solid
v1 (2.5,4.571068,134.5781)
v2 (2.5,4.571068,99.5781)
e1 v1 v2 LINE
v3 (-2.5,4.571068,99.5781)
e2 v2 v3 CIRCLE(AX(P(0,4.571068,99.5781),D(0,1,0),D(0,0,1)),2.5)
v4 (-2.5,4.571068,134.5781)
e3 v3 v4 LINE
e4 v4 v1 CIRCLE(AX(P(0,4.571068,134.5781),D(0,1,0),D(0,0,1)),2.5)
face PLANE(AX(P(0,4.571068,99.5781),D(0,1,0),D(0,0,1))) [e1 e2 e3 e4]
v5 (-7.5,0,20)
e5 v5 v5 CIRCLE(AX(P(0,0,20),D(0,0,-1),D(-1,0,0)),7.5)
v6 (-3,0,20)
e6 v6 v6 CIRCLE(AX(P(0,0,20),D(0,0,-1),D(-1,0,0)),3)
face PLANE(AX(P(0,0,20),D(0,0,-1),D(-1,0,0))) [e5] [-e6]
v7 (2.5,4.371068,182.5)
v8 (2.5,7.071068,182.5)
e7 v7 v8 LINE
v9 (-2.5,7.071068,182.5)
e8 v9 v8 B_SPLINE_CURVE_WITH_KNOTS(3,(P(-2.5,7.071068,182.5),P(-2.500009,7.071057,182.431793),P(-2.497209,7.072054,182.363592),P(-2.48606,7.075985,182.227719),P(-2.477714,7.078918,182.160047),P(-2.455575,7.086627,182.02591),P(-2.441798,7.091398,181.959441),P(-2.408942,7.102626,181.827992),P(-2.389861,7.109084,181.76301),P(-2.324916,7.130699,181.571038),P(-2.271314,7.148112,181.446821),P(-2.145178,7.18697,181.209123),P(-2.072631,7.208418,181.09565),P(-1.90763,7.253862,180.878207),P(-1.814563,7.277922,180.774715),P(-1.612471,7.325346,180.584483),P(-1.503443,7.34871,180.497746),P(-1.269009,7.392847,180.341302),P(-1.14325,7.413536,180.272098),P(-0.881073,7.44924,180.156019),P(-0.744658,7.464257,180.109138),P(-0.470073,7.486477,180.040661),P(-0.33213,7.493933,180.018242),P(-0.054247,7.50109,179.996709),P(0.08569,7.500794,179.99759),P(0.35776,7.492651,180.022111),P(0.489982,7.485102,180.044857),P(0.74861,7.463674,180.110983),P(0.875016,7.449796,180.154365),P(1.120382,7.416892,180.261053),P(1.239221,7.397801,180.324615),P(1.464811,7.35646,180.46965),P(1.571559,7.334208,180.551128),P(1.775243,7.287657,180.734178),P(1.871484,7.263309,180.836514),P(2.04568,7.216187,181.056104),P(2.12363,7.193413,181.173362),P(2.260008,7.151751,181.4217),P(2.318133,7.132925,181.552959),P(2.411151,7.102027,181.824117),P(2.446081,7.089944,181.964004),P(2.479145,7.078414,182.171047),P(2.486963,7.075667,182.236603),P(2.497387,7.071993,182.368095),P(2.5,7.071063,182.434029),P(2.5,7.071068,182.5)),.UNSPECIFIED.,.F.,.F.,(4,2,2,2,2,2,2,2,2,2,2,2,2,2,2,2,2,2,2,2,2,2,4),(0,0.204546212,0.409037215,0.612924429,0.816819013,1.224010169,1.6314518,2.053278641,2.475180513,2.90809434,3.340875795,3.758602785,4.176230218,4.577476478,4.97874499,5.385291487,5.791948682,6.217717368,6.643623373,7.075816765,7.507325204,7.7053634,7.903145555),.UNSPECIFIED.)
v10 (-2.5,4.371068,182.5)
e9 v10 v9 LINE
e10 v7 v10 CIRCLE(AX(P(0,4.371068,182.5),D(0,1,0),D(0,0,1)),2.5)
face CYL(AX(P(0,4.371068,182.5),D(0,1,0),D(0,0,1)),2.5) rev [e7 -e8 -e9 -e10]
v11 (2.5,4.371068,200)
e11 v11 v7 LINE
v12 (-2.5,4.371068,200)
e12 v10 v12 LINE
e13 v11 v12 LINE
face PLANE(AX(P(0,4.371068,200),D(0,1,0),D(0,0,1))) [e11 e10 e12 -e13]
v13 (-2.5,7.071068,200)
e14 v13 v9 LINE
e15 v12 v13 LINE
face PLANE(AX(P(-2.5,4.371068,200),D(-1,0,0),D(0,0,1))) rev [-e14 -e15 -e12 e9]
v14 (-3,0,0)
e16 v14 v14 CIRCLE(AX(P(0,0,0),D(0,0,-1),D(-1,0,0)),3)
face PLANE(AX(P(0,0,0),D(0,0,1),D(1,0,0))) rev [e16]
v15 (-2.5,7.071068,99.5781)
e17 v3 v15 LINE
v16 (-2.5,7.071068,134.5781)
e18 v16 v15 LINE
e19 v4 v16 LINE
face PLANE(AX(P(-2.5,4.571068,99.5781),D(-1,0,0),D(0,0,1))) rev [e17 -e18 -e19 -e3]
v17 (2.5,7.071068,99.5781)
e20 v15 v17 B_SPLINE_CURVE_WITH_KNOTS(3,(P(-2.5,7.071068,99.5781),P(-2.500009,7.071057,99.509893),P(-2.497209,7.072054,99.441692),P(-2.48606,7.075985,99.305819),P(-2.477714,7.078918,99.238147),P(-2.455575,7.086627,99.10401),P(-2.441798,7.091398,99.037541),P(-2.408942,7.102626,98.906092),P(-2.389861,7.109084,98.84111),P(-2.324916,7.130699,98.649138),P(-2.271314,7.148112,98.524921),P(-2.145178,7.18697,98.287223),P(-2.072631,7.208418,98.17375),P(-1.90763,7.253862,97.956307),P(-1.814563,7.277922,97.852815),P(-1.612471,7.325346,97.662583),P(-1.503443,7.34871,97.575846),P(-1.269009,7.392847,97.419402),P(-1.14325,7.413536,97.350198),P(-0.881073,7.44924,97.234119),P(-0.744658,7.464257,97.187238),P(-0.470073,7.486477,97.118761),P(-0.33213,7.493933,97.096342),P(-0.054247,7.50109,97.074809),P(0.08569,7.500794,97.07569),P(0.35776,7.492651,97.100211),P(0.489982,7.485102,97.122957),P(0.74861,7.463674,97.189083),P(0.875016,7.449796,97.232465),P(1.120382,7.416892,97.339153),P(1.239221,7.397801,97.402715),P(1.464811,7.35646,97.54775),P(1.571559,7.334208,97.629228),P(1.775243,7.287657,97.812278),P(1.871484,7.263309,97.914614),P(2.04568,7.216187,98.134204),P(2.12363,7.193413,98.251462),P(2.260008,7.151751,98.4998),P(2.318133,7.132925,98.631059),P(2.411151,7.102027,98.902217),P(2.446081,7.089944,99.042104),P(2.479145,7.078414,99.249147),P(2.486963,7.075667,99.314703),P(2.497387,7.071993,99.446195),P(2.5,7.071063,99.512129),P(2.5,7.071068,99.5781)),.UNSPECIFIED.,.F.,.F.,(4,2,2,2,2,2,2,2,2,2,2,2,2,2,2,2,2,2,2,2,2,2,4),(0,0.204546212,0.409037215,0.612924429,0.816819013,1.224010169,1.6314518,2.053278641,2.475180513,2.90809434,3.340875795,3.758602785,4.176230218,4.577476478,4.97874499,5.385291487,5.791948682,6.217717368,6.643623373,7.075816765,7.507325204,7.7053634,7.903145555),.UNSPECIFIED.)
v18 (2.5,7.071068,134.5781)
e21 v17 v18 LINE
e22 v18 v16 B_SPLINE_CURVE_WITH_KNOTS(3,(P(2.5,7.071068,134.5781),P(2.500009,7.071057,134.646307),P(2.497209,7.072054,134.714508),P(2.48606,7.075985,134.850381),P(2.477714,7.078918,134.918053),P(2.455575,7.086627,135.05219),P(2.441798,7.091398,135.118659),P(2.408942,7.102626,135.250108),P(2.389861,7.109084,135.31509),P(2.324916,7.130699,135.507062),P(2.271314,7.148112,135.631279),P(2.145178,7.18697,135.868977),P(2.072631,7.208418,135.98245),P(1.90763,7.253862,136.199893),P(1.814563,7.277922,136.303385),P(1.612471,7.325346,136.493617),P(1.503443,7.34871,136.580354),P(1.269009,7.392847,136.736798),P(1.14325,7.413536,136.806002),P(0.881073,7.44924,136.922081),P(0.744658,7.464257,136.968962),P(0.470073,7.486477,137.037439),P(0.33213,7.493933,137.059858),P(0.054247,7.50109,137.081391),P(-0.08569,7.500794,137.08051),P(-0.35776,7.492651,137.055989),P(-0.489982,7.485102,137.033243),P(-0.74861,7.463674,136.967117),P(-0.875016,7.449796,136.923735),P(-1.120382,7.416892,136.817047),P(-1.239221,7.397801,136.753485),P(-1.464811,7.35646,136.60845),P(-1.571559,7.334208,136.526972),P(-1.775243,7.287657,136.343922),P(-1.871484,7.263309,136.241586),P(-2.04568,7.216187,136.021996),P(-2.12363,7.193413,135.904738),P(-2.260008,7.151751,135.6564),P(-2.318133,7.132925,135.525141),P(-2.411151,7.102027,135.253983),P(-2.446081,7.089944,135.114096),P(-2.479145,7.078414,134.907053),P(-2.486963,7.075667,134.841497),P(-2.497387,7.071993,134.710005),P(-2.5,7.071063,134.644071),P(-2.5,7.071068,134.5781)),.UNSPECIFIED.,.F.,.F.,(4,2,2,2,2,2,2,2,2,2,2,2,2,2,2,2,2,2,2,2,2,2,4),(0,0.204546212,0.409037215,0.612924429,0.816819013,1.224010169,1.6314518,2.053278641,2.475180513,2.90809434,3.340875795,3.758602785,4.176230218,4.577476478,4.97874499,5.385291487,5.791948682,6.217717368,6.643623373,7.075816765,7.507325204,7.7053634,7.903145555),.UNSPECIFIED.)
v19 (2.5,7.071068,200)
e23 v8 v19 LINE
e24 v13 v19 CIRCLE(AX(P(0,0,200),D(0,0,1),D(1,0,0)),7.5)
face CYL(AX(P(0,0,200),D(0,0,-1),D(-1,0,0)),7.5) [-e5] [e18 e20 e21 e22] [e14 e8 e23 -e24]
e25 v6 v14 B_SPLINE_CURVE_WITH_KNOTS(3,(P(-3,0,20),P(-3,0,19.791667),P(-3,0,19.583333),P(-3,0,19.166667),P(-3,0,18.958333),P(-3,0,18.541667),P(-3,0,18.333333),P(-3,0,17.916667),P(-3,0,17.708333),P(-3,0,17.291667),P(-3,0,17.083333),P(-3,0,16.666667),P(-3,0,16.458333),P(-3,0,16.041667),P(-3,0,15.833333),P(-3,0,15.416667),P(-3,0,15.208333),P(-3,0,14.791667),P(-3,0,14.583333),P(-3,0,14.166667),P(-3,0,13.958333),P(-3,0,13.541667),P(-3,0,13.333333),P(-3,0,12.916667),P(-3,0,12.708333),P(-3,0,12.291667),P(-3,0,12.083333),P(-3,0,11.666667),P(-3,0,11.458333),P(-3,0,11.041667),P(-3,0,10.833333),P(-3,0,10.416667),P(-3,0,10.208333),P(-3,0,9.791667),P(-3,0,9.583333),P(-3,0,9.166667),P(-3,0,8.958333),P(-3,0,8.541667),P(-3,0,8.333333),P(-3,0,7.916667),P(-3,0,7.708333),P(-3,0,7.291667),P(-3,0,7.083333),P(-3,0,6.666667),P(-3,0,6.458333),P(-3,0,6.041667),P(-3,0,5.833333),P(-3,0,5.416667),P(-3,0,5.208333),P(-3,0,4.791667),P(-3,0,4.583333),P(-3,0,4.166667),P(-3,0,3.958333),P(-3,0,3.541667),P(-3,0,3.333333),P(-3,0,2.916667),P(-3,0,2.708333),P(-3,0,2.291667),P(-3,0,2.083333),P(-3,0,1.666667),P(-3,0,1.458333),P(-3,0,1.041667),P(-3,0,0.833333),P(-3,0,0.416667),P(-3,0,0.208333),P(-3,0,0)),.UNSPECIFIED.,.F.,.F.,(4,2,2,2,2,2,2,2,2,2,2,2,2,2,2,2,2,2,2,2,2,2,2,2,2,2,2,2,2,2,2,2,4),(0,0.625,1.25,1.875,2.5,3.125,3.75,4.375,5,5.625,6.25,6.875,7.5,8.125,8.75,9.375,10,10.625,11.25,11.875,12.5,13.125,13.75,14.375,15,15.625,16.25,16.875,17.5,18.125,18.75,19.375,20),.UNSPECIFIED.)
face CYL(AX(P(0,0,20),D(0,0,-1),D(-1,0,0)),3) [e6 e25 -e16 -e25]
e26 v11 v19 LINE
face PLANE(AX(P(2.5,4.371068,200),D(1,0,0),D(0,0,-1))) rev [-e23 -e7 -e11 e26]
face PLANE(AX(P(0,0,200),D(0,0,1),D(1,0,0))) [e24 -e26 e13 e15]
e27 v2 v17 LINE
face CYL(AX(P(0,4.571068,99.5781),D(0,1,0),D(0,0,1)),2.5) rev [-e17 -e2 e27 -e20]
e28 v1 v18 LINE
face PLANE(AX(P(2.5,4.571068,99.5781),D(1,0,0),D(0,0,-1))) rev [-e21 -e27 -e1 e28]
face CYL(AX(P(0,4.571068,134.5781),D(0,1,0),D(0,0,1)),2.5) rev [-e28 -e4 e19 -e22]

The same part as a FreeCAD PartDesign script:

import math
import FreeCAD as App
import Part
import Sketcher

V = App.Vector

doc = App.newDocument("Part")
body = doc.addObject("PartDesign::Body", "Body")

sketch1 = body.newObject("Sketcher::SketchObject", "Sketch")
sketch1.AttachmentSupport = (doc.getObject("XY_Plane"), [""])
sketch1.MapMode = "FlatFace"
sketch1.addGeometry(Part.Circle(V(0, 0, 0), V(0, 0, 1), 8), False)
sketch1.addConstraint([
    Sketcher.Constraint("Coincident", 0, 3, -1, 1),
    Sketcher.Constraint("Diameter", 0, 15.0),
])
pad1 = body.newObject("PartDesign::Pad", "Pad")
pad1.Profile = sketch1
pad1.Length = 200

sketch2 = body.newObject("Sketcher::SketchObject", "Sketch001")
sketch2.AttachmentSupport = (doc.getObject("XY_Plane"), [""])
sketch2.MapMode = "FlatFace"
sketch2.addGeometry([
    Part.Circle(V(0, 0, 0), V(0, 0, 1), 7.5),
    Part.Circle(V(0, 0, 0), V(0, 0, 1), 3),
], False)
sketch2.addConstraint([
    Sketcher.Constraint("Coincident", 0, 3, -1, 1),
    Sketcher.Constraint("Coincident", 1, 3, -1, 1),
    Sketcher.Constraint("Diameter", 0, 15.0),
    Sketcher.Constraint("Diameter", 1, 6.0),
])
pocket1 = body.newObject("PartDesign::Pocket", "Pocket")
pocket1.Profile = sketch2
pocket1.Length = 20
pocket1.Reversed = True

sketch3 = body.newObject("Sketcher::SketchObject", "Sketch002")
sketch3.AttachmentSupport = (doc.getObject("XZ_Plane"), [""])
sketch3.MapMode = "FlatFace"
sketch3.AttachmentOffset = App.Placement(V(0, 0, -17.071068), App.Rotation())
sketch3.addGeometry([
    Part.LineSegment(V(2.5, 134.6, 0), V(2.5, 99.6, 0)),
    Part.ArcOfCircle(Part.Circle(V(0, 99.6, 0), V(0, 0, 1), 2.5), math.radians(180), math.radians(360)),
    Part.LineSegment(V(-2.5, 99.6, 0), V(-2.5, 134.6, 0)),
    Part.ArcOfCircle(Part.Circle(V(0, 134.6, 0), V(0, 0, 1), 2.5), math.radians(0), math.radians(180)),
], False)
sketch3.addConstraint([
    Sketcher.Constraint("Tangent", 0, 2, 1, 2),
    Sketcher.Constraint("Tangent", 1, 1, 2, 1),
    Sketcher.Constraint("Tangent", 2, 2, 3, 2),
    Sketcher.Constraint("Tangent", 3, 1, 0, 1),
    Sketcher.Constraint("Vertical", 0),
    Sketcher.Constraint("Vertical", 2),
    Sketcher.Constraint("PointOnObject", 1, 3, -2),
    Sketcher.Constraint("Radius", 1, 2.5),
    Sketcher.Constraint("DistanceY", 0, 2, 0, 1, 35.0),
    Sketcher.Constraint("DistanceY", -1, 1, 1, 3, 99.5781),
])
pocket2 = body.newObject("PartDesign::Pocket", "Pocket001")
pocket2.Profile = sketch3
pocket2.Length = 12.5
pocket2.Reversed = True

sketch4 = body.newObject("Sketcher::SketchObject", "Sketch003")
sketch4.AttachmentSupport = (doc.getObject("XZ_Plane"), [""])
sketch4.MapMode = "FlatFace"
sketch4.AttachmentOffset = App.Placement(V(0, 0, -17.071068), App.Rotation())
sketch4.addGeometry([
    Part.LineSegment(V(-2.5, 182.5, 0), V(-2.5, 200, 0)),
    Part.ArcOfCircle(Part.Circle(V(0, 200, 0), V(0, 0, 1), 2.5), math.radians(0), math.radians(180)),
    Part.LineSegment(V(2.5, 200, 0), V(2.5, 182.5, 0)),
    Part.ArcOfCircle(Part.Circle(V(0, 182.5, 0), V(0, 0, 1), 2.5), math.radians(180), math.radians(360)),
], False)
sketch4.addConstraint([
    Sketcher.Constraint("Tangent", 0, 2, 1, 2),
    Sketcher.Constraint("Tangent", 1, 1, 2, 1),
    Sketcher.Constraint("Tangent", 2, 2, 3, 2),
    Sketcher.Constraint("Tangent", 3, 1, 0, 1),
    Sketcher.Constraint("Vertical", 0),
    Sketcher.Constraint("Vertical", 2),
    Sketcher.Constraint("PointOnObject", 1, 3, -2),
    Sketcher.Constraint("Radius", 1, 2.5),
    Sketcher.Constraint("DistanceY", 0, 1, 0, 2, 17.5),
    Sketcher.Constraint("DistanceY", -1, 1, 1, 3, 200.0),
])
pocket3 = body.newObject("PartDesign::Pocket", "Pocket002")
pocket3.Profile = sketch4
pocket3.Length = 12.7
pocket3.Reversed = True

doc.recompute()
